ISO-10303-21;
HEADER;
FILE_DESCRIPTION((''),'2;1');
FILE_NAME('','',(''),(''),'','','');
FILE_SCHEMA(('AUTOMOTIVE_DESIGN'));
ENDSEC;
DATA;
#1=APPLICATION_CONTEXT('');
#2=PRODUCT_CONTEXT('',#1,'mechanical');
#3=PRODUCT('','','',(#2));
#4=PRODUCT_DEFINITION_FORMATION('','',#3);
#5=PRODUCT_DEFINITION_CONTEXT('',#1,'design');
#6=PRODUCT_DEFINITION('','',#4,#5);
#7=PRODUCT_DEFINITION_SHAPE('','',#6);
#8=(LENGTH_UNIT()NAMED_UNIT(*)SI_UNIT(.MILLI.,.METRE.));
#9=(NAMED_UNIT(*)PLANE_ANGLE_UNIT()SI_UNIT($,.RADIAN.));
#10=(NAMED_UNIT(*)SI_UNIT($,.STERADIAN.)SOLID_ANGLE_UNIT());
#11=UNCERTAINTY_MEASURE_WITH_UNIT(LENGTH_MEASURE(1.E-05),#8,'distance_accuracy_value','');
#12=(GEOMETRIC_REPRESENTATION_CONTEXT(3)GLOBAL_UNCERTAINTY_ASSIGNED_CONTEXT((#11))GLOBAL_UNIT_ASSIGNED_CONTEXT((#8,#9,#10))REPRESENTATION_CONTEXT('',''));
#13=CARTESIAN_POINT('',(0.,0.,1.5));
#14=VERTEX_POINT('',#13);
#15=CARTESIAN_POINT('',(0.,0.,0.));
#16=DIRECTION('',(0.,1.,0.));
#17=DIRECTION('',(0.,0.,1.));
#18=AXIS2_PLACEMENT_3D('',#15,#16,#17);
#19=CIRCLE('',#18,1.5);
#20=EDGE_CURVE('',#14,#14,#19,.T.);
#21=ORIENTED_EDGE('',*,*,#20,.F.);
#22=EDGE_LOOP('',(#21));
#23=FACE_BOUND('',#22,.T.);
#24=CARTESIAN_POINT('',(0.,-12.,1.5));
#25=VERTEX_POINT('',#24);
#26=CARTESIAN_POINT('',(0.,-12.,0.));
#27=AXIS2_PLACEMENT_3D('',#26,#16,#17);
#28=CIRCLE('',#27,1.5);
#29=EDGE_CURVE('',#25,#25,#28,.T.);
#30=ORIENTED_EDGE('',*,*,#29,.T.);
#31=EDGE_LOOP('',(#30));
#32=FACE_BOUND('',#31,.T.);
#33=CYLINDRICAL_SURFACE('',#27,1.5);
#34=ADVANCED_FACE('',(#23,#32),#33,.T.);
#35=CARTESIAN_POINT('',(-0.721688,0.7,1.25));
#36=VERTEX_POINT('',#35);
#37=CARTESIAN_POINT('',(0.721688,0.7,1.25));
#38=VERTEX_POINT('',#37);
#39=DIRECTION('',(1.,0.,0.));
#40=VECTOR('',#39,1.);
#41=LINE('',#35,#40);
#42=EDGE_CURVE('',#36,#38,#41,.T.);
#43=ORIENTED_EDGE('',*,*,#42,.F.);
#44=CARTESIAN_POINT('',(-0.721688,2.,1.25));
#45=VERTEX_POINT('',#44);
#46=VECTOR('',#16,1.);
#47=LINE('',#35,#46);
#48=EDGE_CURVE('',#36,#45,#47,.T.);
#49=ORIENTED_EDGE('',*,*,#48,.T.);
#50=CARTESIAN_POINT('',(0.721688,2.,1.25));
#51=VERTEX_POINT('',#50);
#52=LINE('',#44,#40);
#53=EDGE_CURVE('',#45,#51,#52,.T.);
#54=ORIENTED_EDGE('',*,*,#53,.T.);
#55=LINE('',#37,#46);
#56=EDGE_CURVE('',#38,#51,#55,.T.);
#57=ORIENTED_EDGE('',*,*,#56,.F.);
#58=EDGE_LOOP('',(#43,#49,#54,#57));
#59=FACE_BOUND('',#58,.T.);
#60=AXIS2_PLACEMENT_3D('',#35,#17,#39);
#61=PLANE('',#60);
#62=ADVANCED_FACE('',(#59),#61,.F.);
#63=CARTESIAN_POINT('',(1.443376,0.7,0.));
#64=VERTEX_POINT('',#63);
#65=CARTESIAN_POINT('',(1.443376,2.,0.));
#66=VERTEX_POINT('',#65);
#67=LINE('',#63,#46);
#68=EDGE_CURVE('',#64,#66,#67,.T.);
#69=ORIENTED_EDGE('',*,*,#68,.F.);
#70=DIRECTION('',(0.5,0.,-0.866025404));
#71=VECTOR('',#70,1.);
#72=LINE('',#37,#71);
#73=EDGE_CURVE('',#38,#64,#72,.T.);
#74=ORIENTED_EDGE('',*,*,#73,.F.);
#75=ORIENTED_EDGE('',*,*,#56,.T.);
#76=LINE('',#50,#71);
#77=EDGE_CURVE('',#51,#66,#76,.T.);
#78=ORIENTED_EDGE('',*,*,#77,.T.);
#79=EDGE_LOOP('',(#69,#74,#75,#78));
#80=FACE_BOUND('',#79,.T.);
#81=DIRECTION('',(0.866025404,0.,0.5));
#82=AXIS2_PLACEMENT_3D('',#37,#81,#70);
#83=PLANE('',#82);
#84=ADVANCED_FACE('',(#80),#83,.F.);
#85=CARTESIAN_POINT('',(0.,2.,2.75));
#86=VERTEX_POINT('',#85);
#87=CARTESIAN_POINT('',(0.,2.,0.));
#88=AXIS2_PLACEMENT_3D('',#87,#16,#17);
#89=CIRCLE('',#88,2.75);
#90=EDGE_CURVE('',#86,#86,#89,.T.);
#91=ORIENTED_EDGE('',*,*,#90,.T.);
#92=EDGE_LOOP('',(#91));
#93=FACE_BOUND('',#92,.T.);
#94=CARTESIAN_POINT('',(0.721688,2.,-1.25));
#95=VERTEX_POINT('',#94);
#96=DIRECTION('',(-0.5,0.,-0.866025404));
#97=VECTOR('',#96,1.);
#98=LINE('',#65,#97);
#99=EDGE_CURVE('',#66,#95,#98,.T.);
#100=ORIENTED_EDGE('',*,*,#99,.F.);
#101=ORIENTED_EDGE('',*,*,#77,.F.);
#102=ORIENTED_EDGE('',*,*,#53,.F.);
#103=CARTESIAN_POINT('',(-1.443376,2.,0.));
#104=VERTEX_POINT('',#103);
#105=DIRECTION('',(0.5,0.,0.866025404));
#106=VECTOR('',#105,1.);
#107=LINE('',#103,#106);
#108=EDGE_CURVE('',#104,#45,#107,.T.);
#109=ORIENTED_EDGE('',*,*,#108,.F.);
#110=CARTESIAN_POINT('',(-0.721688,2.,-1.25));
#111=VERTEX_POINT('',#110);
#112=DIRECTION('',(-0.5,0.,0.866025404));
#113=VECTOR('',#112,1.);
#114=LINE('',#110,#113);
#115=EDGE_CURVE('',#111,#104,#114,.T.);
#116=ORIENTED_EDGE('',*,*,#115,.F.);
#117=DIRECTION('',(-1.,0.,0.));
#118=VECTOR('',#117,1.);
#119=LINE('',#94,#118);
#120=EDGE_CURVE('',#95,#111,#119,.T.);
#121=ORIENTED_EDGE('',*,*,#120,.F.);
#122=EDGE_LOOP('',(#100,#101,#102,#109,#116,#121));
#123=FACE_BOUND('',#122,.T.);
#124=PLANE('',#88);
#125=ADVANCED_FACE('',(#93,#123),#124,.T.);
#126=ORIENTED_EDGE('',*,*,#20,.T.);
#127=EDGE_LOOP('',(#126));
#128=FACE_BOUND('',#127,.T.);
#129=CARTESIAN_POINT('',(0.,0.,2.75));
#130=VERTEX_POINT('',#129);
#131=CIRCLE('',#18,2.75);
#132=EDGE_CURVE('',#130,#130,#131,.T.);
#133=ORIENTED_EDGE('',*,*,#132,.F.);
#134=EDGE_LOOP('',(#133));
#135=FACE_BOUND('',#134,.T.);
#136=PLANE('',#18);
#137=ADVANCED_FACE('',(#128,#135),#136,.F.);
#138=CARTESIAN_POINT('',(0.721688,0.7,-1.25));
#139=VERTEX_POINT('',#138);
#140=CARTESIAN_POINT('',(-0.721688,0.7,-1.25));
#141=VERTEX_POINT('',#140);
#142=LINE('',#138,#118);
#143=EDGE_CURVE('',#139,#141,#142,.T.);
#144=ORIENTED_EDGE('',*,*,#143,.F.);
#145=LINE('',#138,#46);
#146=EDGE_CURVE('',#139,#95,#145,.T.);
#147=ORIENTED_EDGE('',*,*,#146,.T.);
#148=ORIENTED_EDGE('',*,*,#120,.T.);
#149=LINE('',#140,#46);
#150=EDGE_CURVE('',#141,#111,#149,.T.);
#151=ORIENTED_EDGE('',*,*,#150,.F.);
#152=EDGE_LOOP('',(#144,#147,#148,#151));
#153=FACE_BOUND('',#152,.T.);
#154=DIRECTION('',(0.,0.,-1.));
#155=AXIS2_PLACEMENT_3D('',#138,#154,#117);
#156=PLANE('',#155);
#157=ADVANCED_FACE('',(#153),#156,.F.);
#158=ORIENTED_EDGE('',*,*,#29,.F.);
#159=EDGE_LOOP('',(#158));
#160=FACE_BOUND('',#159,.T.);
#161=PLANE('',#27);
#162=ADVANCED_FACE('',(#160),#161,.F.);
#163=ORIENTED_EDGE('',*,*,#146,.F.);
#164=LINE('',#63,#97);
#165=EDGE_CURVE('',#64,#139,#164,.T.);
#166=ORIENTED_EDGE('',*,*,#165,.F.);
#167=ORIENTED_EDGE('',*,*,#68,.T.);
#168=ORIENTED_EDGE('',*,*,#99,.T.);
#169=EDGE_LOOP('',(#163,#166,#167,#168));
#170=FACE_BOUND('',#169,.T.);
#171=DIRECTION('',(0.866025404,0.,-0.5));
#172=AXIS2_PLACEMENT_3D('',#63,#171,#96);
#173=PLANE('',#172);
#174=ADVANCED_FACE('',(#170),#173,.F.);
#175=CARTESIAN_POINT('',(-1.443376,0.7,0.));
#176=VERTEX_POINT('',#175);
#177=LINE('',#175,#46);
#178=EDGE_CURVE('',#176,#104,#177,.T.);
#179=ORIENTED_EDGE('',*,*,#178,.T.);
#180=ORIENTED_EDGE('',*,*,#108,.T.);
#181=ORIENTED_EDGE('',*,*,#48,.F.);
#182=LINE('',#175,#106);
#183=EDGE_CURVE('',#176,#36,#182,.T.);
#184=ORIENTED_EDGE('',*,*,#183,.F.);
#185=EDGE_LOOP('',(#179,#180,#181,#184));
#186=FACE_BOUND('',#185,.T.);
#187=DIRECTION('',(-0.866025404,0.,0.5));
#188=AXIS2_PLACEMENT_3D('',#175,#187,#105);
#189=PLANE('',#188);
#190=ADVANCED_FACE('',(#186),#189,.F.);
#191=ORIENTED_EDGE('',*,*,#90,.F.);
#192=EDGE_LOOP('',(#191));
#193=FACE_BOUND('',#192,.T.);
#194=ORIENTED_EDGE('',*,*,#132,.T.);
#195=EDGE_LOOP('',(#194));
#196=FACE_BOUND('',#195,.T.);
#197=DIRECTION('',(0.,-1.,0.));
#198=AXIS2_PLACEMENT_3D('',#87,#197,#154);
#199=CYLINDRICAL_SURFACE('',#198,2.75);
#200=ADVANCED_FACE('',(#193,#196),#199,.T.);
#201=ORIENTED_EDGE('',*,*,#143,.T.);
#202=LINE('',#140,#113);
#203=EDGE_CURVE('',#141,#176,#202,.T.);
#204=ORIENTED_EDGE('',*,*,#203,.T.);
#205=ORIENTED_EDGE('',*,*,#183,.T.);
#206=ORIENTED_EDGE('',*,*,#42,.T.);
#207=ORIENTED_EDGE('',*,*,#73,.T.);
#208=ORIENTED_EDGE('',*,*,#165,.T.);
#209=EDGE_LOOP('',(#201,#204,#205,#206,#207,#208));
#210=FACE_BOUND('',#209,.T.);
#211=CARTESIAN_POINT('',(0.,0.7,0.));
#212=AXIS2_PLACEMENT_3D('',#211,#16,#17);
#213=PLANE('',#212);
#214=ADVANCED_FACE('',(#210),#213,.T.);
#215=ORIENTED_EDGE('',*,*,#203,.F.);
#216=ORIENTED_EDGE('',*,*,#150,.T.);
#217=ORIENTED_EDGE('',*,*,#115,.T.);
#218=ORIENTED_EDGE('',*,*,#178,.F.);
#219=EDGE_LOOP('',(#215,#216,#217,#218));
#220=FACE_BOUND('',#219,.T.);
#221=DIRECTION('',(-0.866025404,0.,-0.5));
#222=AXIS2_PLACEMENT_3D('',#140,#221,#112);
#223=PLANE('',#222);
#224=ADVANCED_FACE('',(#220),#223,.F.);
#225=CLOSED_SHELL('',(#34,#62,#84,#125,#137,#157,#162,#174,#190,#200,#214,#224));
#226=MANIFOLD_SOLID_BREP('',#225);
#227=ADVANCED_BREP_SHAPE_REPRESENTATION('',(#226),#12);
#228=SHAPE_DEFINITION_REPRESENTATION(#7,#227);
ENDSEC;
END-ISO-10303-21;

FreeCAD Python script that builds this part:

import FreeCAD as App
import Part
import Sketcher
Q = App.Units.Quantity


def add_polygon(sketch, points):
    """Adds a closed chain of lines whose ends are joined by coincident constraints."""
    first, n = sketch.GeometryCount, len(points)
    for a, b in zip(points, points[1:] + points[:1]):
        sketch.addGeometry(Part.LineSegment(App.Vector(*a, 0), App.Vector(*b, 0)), False)
    for i in range(n):
        sketch.addConstraint(Sketcher.Constraint("Coincident", first + i, 2, first + (i + 1) % n, 1))

doc = App.newDocument("Part")
body = doc.addObject("PartDesign::Body", "Body")

sketch1 = body.newObject("Sketcher::SketchObject", "Sketch")
sketch1.AttachmentSupport = (doc.getObject("XZ_Plane"), [""])
sketch1.MapMode = "FlatFace"
sketch1.addGeometry(Part.Circle(App.Vector(0, 0, 0), App.Vector(0, 0, 1), 2.8), False)
sketch1.addConstraint(Sketcher.Constraint("Coincident", 0, 3, -1, 1))
sketch1.addConstraint(Sketcher.Constraint("Diameter", 0, 5.5))
pad1 = body.newObject("PartDesign::Pad", "Pad")
pad1.Profile = sketch1
pad1.Length = 2
pad1.Reversed = True

sketch2 = body.newObject("Sketcher::SketchObject", "Sketch001")
sketch2.AttachmentSupport = (doc.getObject("XZ_Plane"), [""])
sketch2.MapMode = "FlatFace"
sketch2.addGeometry(Part.Circle(App.Vector(0, 0, 0), App.Vector(0, 0, 1), 1.5), False)
sketch2.addConstraint(Sketcher.Constraint("Coincident", 0, 3, -1, 1))
sketch2.addConstraint(Sketcher.Constraint("Diameter", 0, 3.0))
pad2 = body.newObject("PartDesign::Pad", "Pad001")
pad2.Profile = sketch2
pad2.Length = 12

sketch3 = body.newObject("Sketcher::SketchObject", "Sketch002")
sketch3.AttachmentSupport = (doc.getObject("XZ_Plane"), [""])
sketch3.MapMode = "FlatFace"
sketch3.AttachmentOffset = App.Placement(App.Vector(0, 0, -2), App.Rotation())
add_polygon(sketch3, [(1.4, 0), (0.7, -1.2), (-0.7, -1.2), (-1.4, 0), (-0.7, 1.2), (0.7, 1.2)])
sketch3.addConstraint(Sketcher.Constraint("Horizontal", 1))
sketch3.addConstraint(Sketcher.Constraint("Horizontal", 4))
sketch3.addConstraint(Sketcher.Constraint("Symmetric", 0, 2, 3, 2, -1, 1))
sketch3.addConstraint(Sketcher.Constraint("Symmetric", 2, 2, 5, 2, -1, 1))
sketch3.addConstraint(Sketcher.Constraint("PointOnObject", 2, 2, -1))
sketch3.addConstraint(Sketcher.Constraint("Parallel", 2, 5))
sketch3.addConstraint(Sketcher.Constraint("Vertical", 1, 2, 3, 2))
sketch3.addConstraint(Sketcher.Constraint("Angle", 0, Q("-120 deg")))
sketch3.addConstraint(Sketcher.Constraint("DistanceY", 1, 2, 3, 2, 2.5))
sketch3.addConstraint(Sketcher.Constraint("DistanceX", 1, 2, 1, 1, 1.443376))
pocket1 = body.newObject("PartDesign::Pocket", "Pocket")
pocket1.Profile = sketch3
pocket1.Length = 1.3
pocket1.Reversed = True

doc.recompute()
